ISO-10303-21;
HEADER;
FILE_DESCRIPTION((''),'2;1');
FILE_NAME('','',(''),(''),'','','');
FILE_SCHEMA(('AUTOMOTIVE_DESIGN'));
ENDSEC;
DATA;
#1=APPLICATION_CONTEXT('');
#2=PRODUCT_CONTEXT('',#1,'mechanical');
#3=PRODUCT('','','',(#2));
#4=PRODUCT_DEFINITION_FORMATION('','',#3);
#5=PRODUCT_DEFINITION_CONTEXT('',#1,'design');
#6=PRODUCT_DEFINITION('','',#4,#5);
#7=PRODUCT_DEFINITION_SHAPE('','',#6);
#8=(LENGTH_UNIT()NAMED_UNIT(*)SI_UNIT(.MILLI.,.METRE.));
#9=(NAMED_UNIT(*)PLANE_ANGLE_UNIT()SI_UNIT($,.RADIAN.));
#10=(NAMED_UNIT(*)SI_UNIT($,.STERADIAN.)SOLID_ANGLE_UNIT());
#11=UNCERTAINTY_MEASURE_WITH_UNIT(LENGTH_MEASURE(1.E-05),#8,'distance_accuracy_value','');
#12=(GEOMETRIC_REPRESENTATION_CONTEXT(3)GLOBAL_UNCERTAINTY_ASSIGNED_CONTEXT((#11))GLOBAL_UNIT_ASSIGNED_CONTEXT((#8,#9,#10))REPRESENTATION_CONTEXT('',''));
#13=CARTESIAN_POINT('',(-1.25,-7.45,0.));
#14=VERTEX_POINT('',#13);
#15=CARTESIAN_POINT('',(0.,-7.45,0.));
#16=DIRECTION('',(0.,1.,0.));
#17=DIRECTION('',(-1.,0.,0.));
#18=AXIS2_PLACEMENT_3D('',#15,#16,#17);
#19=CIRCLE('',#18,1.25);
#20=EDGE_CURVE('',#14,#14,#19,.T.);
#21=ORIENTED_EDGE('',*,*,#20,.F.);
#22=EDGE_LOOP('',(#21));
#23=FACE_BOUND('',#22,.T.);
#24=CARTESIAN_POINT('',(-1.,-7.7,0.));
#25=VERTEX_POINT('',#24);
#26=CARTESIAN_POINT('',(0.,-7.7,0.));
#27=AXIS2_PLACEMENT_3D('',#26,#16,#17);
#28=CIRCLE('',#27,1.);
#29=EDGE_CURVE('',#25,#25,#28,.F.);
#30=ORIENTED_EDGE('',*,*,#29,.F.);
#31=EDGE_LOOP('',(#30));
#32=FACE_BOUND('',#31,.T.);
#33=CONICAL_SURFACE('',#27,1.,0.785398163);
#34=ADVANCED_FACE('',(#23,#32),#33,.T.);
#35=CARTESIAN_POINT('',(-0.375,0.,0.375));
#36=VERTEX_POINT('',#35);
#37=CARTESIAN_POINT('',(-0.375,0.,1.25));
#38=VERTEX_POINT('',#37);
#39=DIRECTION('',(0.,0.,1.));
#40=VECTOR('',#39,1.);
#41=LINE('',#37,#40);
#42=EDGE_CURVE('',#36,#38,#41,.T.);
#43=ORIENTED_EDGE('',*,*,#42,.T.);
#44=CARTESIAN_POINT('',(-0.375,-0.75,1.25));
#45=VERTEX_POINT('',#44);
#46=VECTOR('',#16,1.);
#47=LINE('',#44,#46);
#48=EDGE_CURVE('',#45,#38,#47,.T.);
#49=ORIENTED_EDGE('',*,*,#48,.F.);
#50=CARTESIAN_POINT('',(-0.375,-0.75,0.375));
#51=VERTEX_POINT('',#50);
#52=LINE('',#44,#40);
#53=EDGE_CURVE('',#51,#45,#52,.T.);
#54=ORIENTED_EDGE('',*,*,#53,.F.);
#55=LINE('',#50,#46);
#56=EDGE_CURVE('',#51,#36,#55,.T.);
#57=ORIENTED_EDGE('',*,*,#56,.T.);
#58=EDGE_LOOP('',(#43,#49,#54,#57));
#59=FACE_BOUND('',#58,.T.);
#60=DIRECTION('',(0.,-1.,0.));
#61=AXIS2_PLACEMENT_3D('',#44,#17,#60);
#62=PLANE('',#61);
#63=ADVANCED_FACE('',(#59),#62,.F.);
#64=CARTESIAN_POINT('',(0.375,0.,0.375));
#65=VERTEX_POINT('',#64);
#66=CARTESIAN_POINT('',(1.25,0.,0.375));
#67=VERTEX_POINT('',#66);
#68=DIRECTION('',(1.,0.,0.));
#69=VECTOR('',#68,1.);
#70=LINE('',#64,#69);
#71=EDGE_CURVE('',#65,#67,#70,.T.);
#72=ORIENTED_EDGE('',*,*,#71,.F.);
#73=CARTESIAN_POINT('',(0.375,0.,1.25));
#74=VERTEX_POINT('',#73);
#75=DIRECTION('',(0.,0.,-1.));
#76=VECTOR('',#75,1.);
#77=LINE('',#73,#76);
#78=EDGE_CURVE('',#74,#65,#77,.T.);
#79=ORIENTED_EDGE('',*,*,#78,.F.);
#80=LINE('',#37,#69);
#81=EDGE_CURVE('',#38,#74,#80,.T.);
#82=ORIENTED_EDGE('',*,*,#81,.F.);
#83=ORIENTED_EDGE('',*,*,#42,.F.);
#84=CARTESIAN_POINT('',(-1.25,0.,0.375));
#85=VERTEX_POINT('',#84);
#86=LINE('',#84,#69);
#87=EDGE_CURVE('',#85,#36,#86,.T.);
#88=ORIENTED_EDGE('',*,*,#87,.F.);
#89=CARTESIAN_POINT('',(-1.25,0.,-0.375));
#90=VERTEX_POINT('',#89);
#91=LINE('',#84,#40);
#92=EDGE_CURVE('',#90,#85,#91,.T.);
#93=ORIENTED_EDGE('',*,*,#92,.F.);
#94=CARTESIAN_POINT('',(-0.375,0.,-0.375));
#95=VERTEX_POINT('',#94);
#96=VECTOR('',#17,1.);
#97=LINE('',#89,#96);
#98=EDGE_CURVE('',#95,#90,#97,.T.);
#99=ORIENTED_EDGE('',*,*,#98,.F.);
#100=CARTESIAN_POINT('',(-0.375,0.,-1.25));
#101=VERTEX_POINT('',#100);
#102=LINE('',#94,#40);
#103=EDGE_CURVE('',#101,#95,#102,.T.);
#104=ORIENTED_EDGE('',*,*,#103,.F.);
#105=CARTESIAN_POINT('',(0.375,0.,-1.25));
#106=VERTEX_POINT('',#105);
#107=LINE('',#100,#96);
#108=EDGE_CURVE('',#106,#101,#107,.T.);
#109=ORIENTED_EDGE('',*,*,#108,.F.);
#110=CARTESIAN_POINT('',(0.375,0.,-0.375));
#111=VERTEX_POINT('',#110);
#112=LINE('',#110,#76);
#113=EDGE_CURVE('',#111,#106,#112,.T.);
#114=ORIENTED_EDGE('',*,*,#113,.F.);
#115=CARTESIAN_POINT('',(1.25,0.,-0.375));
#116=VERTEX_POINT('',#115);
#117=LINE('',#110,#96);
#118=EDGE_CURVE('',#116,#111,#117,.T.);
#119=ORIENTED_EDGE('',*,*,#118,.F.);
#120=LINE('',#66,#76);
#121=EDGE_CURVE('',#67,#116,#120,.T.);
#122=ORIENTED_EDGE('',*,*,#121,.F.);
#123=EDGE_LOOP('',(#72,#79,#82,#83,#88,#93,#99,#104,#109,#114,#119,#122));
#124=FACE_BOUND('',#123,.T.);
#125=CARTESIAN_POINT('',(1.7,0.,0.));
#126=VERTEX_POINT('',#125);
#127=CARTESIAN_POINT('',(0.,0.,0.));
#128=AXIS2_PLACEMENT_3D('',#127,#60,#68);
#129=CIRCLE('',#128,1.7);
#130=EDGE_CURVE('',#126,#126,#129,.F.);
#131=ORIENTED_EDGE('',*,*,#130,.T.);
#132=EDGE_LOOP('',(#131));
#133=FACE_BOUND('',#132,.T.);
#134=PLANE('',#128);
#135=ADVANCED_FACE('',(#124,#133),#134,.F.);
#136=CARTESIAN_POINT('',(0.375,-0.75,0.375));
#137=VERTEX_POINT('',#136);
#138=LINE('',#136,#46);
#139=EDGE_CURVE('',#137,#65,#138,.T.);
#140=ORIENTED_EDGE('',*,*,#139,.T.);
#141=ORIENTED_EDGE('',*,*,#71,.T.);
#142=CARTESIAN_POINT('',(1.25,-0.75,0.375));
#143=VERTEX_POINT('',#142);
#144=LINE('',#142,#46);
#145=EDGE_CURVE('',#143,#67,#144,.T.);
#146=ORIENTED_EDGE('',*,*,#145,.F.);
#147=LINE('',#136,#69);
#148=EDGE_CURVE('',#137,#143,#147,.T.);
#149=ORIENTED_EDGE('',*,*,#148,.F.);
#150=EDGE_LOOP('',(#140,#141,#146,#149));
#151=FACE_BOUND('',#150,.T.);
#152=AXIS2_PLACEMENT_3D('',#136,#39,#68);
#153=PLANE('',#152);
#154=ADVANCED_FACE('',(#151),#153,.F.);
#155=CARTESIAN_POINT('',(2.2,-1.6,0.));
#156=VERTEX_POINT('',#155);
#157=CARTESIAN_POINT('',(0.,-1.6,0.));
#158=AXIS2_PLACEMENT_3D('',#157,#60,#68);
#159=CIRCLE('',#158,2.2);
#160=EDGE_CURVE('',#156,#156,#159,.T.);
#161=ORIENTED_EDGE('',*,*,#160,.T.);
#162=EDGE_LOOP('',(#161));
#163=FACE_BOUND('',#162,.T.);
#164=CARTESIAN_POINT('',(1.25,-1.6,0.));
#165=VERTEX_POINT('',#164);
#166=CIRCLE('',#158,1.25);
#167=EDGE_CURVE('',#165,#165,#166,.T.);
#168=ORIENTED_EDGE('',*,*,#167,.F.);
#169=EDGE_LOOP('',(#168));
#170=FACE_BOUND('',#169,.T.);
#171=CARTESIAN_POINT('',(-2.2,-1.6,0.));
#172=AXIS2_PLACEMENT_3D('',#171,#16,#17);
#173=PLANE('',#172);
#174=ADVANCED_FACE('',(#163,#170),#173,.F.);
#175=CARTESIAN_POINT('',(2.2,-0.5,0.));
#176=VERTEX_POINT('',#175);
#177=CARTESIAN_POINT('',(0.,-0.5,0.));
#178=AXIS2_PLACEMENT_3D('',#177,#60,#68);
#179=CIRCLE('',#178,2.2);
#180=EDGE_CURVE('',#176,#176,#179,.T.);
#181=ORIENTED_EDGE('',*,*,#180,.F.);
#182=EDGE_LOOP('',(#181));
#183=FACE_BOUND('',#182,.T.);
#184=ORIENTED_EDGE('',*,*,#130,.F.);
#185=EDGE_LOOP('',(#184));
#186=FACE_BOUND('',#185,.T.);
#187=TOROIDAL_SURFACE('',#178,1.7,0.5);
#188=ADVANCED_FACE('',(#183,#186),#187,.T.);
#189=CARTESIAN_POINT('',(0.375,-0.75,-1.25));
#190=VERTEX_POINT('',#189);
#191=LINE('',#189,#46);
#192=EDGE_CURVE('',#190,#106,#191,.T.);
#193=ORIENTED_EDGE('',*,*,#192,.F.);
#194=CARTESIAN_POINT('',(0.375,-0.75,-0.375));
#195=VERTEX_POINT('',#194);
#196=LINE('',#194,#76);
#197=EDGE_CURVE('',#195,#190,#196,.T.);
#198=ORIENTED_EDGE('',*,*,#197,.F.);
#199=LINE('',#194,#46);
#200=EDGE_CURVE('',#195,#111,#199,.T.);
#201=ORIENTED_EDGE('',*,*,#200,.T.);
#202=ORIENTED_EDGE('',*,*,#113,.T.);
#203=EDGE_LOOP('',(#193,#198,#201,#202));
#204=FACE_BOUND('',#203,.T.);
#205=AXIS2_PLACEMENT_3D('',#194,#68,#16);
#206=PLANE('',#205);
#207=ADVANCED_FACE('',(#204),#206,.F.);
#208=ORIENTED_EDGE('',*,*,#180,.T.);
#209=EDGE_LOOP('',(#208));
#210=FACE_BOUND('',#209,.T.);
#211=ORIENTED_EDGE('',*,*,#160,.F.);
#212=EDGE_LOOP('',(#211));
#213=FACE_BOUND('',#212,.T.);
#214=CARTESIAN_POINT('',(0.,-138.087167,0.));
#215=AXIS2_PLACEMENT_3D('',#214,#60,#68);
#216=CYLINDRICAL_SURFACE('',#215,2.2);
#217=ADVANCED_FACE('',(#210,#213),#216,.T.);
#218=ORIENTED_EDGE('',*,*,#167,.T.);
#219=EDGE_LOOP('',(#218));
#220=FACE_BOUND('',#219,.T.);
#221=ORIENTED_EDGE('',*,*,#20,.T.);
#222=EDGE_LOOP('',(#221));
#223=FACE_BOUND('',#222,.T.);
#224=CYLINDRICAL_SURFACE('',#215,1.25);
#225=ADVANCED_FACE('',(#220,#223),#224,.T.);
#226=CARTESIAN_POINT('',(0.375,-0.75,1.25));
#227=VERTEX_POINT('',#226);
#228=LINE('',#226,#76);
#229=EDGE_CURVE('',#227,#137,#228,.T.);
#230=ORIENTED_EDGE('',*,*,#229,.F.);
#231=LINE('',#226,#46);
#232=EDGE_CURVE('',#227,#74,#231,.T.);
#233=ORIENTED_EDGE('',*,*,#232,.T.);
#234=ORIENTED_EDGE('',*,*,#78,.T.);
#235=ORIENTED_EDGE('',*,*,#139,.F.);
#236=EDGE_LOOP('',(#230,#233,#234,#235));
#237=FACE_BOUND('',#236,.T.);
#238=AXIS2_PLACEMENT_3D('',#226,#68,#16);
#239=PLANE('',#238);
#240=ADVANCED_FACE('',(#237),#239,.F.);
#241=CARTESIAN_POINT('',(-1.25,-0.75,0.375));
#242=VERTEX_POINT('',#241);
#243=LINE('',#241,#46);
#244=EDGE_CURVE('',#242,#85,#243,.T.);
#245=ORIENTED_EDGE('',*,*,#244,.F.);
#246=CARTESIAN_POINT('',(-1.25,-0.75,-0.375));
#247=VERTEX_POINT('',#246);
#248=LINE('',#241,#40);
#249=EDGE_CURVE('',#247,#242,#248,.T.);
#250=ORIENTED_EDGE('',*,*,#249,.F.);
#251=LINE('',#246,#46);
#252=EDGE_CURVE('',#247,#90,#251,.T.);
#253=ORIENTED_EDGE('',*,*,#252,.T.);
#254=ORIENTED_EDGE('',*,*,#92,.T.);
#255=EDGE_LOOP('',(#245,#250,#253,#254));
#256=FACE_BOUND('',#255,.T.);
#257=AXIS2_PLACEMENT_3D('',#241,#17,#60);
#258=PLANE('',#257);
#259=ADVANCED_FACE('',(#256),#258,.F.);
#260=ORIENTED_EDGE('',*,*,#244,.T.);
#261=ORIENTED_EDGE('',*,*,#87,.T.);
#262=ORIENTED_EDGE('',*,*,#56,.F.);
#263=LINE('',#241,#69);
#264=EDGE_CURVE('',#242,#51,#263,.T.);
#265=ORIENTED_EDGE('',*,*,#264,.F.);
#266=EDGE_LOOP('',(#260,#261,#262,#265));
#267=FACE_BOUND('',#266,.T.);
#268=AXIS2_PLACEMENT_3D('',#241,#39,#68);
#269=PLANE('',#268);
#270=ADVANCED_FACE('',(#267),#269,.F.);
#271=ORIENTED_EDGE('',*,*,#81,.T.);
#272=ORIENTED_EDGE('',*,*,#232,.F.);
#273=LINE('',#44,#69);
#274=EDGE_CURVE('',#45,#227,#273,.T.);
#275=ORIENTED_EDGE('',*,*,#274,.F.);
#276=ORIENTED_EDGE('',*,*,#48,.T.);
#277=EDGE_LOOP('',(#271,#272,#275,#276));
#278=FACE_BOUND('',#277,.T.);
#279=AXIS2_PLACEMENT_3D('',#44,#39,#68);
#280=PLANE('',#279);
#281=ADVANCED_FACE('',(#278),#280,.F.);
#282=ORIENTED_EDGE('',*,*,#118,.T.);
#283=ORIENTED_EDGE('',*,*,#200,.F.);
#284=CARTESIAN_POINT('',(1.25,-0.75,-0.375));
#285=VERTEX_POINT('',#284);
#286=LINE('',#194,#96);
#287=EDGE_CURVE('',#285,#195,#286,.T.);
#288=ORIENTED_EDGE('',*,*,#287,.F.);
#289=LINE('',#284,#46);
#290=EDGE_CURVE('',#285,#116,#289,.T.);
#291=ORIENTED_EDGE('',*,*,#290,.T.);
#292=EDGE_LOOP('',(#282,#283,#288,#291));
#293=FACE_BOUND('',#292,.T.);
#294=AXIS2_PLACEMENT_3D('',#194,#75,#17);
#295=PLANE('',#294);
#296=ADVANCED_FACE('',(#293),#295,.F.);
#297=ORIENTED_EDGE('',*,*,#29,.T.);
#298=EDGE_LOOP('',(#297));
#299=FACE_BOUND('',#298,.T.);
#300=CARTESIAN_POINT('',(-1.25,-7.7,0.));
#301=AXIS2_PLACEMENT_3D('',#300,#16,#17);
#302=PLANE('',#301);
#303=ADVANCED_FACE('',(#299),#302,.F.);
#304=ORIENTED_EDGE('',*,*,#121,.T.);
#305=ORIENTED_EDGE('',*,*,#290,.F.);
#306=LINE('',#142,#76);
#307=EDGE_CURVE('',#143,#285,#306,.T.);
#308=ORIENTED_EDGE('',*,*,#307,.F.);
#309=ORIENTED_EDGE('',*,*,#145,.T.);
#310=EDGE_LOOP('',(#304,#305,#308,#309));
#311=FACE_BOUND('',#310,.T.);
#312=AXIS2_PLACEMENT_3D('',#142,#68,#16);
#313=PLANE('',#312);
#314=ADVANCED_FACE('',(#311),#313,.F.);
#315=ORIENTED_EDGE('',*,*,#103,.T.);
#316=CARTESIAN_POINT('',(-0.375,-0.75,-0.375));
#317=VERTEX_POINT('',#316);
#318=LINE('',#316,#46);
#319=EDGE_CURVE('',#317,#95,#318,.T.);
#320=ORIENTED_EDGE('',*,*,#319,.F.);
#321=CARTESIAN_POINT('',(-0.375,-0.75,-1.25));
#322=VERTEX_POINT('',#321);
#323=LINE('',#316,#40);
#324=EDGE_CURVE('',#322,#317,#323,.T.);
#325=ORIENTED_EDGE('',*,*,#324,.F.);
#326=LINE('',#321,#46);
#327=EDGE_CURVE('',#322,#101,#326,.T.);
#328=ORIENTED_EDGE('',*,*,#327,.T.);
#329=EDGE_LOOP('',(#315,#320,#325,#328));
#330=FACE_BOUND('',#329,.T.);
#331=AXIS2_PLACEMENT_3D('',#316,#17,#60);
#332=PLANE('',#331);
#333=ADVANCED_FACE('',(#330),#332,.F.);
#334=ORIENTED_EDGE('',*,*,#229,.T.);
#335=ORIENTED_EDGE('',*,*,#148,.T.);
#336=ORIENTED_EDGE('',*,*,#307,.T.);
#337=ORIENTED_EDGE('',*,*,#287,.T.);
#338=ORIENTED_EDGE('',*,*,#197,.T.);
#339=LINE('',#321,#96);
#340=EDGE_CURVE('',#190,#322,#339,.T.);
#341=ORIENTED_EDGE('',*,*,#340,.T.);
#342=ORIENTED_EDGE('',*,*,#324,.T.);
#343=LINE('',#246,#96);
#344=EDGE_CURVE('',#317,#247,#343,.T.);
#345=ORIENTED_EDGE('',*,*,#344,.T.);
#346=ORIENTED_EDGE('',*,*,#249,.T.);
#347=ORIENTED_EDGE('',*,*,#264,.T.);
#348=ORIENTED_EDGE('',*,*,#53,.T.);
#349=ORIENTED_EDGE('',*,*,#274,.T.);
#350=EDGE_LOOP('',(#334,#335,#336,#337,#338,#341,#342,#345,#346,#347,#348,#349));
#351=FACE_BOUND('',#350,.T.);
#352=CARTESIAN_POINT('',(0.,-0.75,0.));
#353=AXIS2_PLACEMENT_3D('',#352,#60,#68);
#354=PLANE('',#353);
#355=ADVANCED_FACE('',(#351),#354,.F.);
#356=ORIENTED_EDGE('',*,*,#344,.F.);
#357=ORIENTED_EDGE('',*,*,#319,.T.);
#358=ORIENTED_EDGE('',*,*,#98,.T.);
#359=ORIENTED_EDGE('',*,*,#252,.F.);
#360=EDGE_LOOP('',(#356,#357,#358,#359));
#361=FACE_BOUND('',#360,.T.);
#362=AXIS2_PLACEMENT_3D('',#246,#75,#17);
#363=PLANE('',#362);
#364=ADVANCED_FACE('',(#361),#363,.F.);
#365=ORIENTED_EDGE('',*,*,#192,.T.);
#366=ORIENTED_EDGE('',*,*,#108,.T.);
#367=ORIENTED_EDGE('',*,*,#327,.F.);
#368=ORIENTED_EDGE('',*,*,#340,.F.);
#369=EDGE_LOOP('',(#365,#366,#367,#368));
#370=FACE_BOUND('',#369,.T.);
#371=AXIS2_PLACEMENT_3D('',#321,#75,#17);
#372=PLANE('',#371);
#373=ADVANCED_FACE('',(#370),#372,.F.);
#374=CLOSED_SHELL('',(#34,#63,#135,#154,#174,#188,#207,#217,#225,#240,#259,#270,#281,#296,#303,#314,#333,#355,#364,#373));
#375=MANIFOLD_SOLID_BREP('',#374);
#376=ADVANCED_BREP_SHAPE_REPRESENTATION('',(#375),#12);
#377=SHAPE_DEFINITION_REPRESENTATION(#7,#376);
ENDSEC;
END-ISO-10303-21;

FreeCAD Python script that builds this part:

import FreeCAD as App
import Part
import Sketcher
from FreeCAD import Vector


def edges_at(feature, points):
    """Names of the edges that pass closest to the given points."""
    edges = feature.Shape.Edges
    near = lambda p: min(range(len(edges)), key=lambda i: edges[i].distToShape(Part.Vertex(*p))[0])
    return sorted({f"Edge{near(p) + 1}" for p in points})

doc = App.newDocument("Part")
params = doc.addObject("Spreadsheet::Sheet", "Params")
for row, (alias, value) in enumerate([
    ("sketch1_width", "2.2 mm"),
    ("sketch1_height", "1.6 mm"),
    ("sketch1_height2", "6.1 mm"),
    ("sketch1_width2", "0.95 mm"),
    ("revolution_angle", "360 deg"),
    ("chamfer_size", "0.25 mm"),
    ("fillet_radius", "0.5 mm"),
    ("sketch2_width", "0.75 mm"),
    ("pocket1_length", "0.75 mm"),
], start=1):
    params.set(f"A{row}", alias)
    params.set(f"B{row}", "=" + value)
    params.setAlias(f"B{row}", alias)

body = doc.addObject("PartDesign::Body", "Body")

sketch1 = body.newObject("Sketcher::SketchObject", "Sketch")
sketch1.AttachmentSupport = (doc.getObject("XY_Plane"), [""])
sketch1.MapMode = "FlatFace"
sketch1.addGeometry(Part.LineSegment(Vector(0, 0, 0), Vector(-2.2, 0, 0)), False)
sketch1.addGeometry(Part.LineSegment(Vector(-2.2, 0, 0), Vector(-2.2, -1.6, 0)), False)
sketch1.addGeometry(Part.LineSegment(Vector(-2.2, -1.6, 0), Vector(-1.25, -1.6, 0)), False)
sketch1.addGeometry(Part.LineSegment(Vector(-1.25, -1.6, 0), Vector(-1.25, -7.7, 0)), False)
sketch1.addGeometry(Part.LineSegment(Vector(-1.25, -7.7, 0), Vector(0, -7.7, 0)), False)
sketch1.addGeometry(Part.LineSegment(Vector(0, -7.7, 0), Vector(0, 0, 0)), False)
sketch1.addConstraint(Sketcher.Constraint("Coincident", 0, 2, 1, 1))
sketch1.addConstraint(Sketcher.Constraint("Coincident", 1, 2, 2, 1))
sketch1.addConstraint(Sketcher.Constraint("Coincident", 2, 2, 3, 1))
sketch1.addConstraint(Sketcher.Constraint("Coincident", 3, 2, 4, 1))
sketch1.addConstraint(Sketcher.Constraint("Coincident", 4, 2, 5, 1))
sketch1.addConstraint(Sketcher.Constraint("Coincident", 5, 2, 0, 1))
sketch1.addConstraint(Sketcher.Constraint("Horizontal", 0))
sketch1.addConstraint(Sketcher.Constraint("Vertical", 1))
sketch1.addConstraint(Sketcher.Constraint("Horizontal", 2))
sketch1.addConstraint(Sketcher.Constraint("Vertical", 3))
sketch1.addConstraint(Sketcher.Constraint("Horizontal", 4))
sketch1.addConstraint(Sketcher.Constraint("Vertical", 5))
sketch1.addConstraint(Sketcher.Constraint("Coincident", 5, 2, -1, 1))
sketch1.addConstraint(Sketcher.Constraint("DistanceX", 0, 2, 0, 1, 2.2))
sketch1.addConstraint(Sketcher.Constraint("DistanceY", 1, 2, 1, 1, 1.6))
sketch1.addConstraint(Sketcher.Constraint("DistanceY", 3, 2, 3, 1, 6.1))
sketch1.addConstraint(Sketcher.Constraint("DistanceX", 2, 1, 2, 2, 0.95))
sketch1.setExpression("Constraints[13]", "Params.sketch1_width")
sketch1.setExpression("Constraints[14]", "Params.sketch1_height")
sketch1.setExpression("Constraints[15]", "Params.sketch1_height2")
sketch1.setExpression("Constraints[16]", "Params.sketch1_width2")
revolution = body.newObject("PartDesign::Revolution", "Revolution")
revolution.Profile = sketch1
revolution.ReferenceAxis = (sketch1, ["V_Axis"])
revolution.setExpression("Angle", "Params.revolution_angle")
doc.recompute()

chamfer = body.newObject("PartDesign::Chamfer", "Chamfer")
chamfer.Base = (revolution, edges_at(revolution, [(-1.25, -7.7, 0)]))
chamfer.setExpression("Size", "Params.chamfer_size")
doc.recompute()

fillet = body.newObject("PartDesign::Fillet", "Fillet")
fillet.Base = (chamfer, edges_at(chamfer, [(-2.2, 0, 0)]))
fillet.setExpression("Radius", "Params.fillet_radius")

sketch2 = body.newObject("Sketcher::SketchObject", "Sketch001")
sketch2.AttachmentSupport = (doc.getObject("XZ_Plane"), [""])
sketch2.MapMode = "FlatFace"
sketch2.addGeometry(Part.LineSegment(Vector(-0.375, -1.25, 0), Vector(-0.375, -0.375, 0)), False)
sketch2.addGeometry(Part.LineSegment(Vector(-0.375, -0.375, 0), Vector(-1.25, -0.375, 0)), False)
sketch2.addGeometry(Part.LineSegment(Vector(-1.25, -0.375, 0), Vector(-1.25, 0.375, 0)), False)
sketch2.addGeometry(Part.LineSegment(Vector(-1.25, 0.375, 0), Vector(-0.375, 0.375, 0)), False)
sketch2.addGeometry(Part.LineSegment(Vector(-0.375, 0.375, 0), Vector(-0.375, 1.25, 0)), False)
sketch2.addGeometry(Part.LineSegment(Vector(-0.375, 1.25, 0), Vector(0.375, 1.25, 0)), False)
sketch2.addGeometry(Part.LineSegment(Vector(0.375, 1.25, 0), Vector(0.375, 0.375, 0)), False)
sketch2.addGeometry(Part.LineSegment(Vector(0.375, 0.375, 0), Vector(1.25, 0.375, 0)), False)
sketch2.addGeometry(Part.LineSegment(Vector(1.25, 0.375, 0), Vector(1.25, -0.375, 0)), False)
sketch2.addGeometry(Part.LineSegment(Vector(1.25, -0.375, 0), Vector(0.375, -0.375, 0)), False)
sketch2.addGeometry(Part.LineSegment(Vector(0.375, -0.375, 0), Vector(0.375, -1.25, 0)), False)
sketch2.addGeometry(Part.LineSegment(Vector(0.375, -1.25, 0), Vector(-0.375, -1.25, 0)), False)
sketch2.addConstraint(Sketcher.Constraint("Coincident", 0, 2, 1, 1))
sketch2.addConstraint(Sketcher.Constraint("Coincident", 1, 2, 2, 1))
sketch2.addConstraint(Sketcher.Constraint("Coincident", 2, 2, 3, 1))
sketch2.addConstraint(Sketcher.Constraint("Coincident", 3, 2, 4, 1))
sketch2.addConstraint(Sketcher.Constraint("Coincident", 4, 2, 5, 1))
sketch2.addConstraint(Sketcher.Constraint("Coincident", 5, 2, 6, 1))
sketch2.addConstraint(Sketcher.Constraint("Coincident", 6, 2, 7, 1))
sketch2.addConstraint(Sketcher.Constraint("Coincident", 7, 2, 8, 1))
sketch2.addConstraint(Sketcher.Constraint("Coincident", 8, 2, 9, 1))
sketch2.addConstraint(Sketcher.Constraint("Coincident", 9, 2, 10, 1))
sketch2.addConstraint(Sketcher.Constraint("Coincident", 10, 2, 11, 1))
sketch2.addConstraint(Sketcher.Constraint("Coincident", 11, 2, 0, 1))
sketch2.addConstraint(Sketcher.Constraint("Vertical", 0))
sketch2.addConstraint(Sketcher.Constraint("Horizontal", 1))
sketch2.addConstraint(Sketcher.Constraint("Vertical", 2))
sketch2.addConstraint(Sketcher.Constraint("Horizontal", 3))
sketch2.addConstraint(Sketcher.Constraint("Vertical", 4))
sketch2.addConstraint(Sketcher.Constraint("Horizontal", 5))
sketch2.addConstraint(Sketcher.Constraint("Vertical", 6))
sketch2.addConstraint(Sketcher.Constraint("Horizontal", 7))
sketch2.addConstraint(Sketcher.Constraint("Vertical", 8))
sketch2.addConstraint(Sketcher.Constraint("Horizontal", 9))
sketch2.addConstraint(Sketcher.Constraint("Vertical", 10))
sketch2.addConstraint(Sketcher.Constraint("Horizontal", 11))
sketch2.addConstraint(Sketcher.Constraint("Symmetric", 0, 2, 6, 2, -1, 1))
sketch2.addConstraint(Sketcher.Constraint("Symmetric", 2, 2, 8, 2, -1, 1))
sketch2.addConstraint(Sketcher.Constraint("Symmetric", 4, 2, 10, 2, -1, 1))
sketch2.addConstraint(Sketcher.Constraint("Symmetric", 3, 2, 6, 2, -2))
sketch2.addConstraint(Sketcher.Constraint("Equal", 9, 0))
sketch2.addConstraint(Sketcher.Constraint("Equal", 11, 2))
sketch2.addConstraint(Sketcher.Constraint("DistanceX", 5, 1, 5, 2, 0.75))
sketch2.addConstraint(Sketcher.Constraint("DistanceX", 1, 2, 1, 1, 0.875))
sketch2.setExpression("Constraints[30]", "Params.sketch2_width")
pocket1 = body.newObject("PartDesign::Pocket", "Pocket")
pocket1.Profile = sketch2
pocket1.setExpression("Length", "Params.pocket1_length")
pocket1.Reversed = True

doc.recompute()
